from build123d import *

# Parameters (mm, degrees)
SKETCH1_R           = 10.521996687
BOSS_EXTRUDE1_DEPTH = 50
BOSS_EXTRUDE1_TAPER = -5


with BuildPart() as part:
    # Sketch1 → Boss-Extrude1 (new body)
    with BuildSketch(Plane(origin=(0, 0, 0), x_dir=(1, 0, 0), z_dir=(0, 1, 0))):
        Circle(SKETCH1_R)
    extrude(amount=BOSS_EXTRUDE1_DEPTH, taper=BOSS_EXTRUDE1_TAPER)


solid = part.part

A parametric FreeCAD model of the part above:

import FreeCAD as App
import Part
import Sketcher
from FreeCAD import Vector
Q = App.Units.Quantity

doc = App.newDocument("Part")
body = doc.addObject("PartDesign::Body", "Body")

sketch1 = body.newObject("Sketcher::SketchObject", "Sketch")
sketch1.AttachmentSupport = (doc.getObject("XZ_Plane"), [""])
sketch1.MapMode = "FlatFace"
sketch1.addGeometry(Part.Circle(Vector(0, 0, 0), Vector(0, 0, 1), 11), False)
sketch1.addConstraint(Sketcher.Constraint("Coincident", 0, 3, -1, 1))
sketch1.addConstraint(Sketcher.Constraint("Diameter", 0, Q("21.043993 mm")))
pad1 = body.newObject("PartDesign::Pad", "Pad")
pad1.Profile = sketch1
pad1.Length = 50
pad1.Reversed = True
pad1.TaperAngle = 5

doc.recompute()
